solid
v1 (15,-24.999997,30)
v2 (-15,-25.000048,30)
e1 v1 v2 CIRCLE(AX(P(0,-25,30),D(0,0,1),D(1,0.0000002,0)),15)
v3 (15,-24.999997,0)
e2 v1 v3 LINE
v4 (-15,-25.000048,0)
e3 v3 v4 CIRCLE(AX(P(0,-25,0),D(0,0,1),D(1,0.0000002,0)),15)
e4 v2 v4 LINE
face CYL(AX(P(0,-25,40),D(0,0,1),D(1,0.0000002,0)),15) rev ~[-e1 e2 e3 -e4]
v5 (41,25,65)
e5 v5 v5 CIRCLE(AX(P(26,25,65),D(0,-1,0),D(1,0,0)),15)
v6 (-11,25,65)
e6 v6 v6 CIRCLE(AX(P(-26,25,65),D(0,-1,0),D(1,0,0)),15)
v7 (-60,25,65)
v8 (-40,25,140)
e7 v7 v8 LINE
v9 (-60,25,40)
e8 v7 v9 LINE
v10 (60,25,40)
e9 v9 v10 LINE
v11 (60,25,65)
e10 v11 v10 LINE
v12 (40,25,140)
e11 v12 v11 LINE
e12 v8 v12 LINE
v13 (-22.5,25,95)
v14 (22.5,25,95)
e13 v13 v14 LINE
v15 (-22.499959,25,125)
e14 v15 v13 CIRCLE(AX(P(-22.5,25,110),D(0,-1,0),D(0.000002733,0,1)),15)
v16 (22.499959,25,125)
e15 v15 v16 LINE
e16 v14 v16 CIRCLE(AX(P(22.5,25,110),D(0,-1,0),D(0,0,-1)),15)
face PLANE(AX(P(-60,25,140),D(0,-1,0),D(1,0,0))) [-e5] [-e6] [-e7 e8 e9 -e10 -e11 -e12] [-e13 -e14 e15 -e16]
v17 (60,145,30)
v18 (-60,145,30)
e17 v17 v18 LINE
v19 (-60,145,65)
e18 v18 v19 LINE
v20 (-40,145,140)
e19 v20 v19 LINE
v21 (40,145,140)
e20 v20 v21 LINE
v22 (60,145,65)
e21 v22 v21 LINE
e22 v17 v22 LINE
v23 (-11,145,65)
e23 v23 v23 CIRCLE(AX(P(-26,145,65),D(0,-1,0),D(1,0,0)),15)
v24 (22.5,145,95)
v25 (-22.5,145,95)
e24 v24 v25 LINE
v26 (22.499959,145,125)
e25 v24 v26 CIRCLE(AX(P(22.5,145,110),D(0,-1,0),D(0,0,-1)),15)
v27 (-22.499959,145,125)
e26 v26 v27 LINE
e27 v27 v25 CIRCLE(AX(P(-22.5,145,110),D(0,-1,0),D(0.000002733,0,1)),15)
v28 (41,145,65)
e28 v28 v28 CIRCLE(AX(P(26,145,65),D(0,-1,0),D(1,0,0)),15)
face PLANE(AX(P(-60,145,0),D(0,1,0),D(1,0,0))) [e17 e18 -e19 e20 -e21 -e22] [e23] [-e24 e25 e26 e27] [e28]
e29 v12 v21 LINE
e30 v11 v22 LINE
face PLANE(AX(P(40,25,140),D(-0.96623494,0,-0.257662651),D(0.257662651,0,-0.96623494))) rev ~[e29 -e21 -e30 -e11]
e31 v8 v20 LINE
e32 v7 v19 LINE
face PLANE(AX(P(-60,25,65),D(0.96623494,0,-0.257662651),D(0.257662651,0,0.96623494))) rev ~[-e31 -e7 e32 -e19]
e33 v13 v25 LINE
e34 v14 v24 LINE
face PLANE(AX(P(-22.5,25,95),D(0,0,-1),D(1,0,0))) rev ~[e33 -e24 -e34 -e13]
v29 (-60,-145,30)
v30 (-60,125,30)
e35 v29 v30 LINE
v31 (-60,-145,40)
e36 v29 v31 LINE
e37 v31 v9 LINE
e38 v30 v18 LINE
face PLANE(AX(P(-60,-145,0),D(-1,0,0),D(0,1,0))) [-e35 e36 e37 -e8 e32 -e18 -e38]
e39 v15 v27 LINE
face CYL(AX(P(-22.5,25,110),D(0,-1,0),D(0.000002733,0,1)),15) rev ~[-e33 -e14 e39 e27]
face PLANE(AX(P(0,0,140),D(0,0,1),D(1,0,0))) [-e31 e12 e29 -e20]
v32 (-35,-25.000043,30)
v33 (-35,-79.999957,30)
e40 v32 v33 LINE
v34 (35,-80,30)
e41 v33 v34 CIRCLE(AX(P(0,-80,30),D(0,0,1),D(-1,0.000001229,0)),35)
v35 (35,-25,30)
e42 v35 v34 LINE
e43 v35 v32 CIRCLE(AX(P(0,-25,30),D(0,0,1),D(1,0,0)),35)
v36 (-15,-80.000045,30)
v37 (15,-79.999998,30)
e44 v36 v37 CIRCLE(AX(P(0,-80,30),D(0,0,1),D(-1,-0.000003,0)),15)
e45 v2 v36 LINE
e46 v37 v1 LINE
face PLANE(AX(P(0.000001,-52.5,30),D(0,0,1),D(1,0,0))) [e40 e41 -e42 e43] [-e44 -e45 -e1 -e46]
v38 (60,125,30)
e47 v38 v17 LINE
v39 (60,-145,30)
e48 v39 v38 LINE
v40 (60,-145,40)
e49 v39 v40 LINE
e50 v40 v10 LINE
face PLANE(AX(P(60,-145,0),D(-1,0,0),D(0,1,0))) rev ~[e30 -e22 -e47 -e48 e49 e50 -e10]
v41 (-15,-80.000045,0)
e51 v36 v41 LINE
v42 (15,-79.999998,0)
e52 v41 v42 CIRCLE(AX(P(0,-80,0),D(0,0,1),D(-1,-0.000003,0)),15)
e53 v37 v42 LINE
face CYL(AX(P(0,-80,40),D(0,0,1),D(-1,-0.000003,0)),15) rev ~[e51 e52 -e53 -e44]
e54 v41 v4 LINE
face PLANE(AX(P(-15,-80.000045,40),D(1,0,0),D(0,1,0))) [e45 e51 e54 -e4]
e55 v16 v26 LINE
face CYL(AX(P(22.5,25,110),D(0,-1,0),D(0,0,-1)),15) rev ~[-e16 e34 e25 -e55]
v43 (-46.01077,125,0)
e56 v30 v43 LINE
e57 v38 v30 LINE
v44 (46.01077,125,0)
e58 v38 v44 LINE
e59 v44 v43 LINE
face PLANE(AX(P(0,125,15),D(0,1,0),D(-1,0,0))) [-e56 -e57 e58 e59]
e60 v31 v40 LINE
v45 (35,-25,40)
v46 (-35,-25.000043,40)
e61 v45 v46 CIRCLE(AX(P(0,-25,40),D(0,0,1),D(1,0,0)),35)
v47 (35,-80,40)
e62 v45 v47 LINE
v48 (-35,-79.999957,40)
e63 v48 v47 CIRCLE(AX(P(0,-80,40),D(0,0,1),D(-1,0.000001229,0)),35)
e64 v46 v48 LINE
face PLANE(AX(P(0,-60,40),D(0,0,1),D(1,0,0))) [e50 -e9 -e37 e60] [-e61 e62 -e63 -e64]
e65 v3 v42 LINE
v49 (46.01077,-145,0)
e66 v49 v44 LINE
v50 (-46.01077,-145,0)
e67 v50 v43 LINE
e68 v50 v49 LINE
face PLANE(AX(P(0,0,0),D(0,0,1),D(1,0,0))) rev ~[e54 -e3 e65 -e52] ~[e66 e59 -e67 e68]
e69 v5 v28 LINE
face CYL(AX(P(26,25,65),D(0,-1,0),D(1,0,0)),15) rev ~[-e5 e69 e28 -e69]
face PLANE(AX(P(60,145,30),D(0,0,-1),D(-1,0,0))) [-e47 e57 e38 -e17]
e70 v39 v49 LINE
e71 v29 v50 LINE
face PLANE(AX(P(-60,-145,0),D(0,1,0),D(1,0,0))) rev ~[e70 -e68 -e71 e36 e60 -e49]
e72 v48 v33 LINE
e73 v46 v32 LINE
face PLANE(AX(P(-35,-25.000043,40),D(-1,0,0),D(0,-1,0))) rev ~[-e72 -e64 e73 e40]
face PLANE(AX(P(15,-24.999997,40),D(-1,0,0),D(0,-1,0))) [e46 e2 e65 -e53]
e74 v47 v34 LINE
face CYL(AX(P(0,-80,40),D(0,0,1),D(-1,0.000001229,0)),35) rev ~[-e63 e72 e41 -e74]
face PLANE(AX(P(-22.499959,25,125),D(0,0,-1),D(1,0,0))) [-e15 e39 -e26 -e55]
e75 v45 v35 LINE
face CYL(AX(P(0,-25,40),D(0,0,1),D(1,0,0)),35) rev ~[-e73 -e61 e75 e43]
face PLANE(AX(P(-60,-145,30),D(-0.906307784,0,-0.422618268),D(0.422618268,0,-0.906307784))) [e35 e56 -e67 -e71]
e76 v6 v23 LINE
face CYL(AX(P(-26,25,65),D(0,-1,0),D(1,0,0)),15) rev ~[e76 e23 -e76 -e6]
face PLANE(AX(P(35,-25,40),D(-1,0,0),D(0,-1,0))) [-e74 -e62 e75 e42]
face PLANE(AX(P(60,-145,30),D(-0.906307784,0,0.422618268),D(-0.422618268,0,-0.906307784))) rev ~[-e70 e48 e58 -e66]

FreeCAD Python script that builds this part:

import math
import FreeCAD as App
import Part
import Sketcher
from FreeCAD import Vector
Q = App.Units.Quantity


def add_polygon(sketch, points):
    """Adds a closed chain of lines whose ends are joined by coincident constraints."""
    first, n = sketch.GeometryCount, len(points)
    for a, b in zip(points, points[1:] + points[:1]):
        sketch.addGeometry(Part.LineSegment(App.Vector(*a, 0), App.Vector(*b, 0)), False)
    for i in range(n):
        sketch.addConstraint(Sketcher.Constraint("Coincident", first + i, 2, first + (i + 1) % n, 1))

doc = App.newDocument("Part")
body = doc.addObject("PartDesign::Body", "Body")

# Sketch on XY plane
sketch1 = body.newObject("Sketcher::SketchObject", "Sketch")
sketch1.AttachmentSupport = (doc.getObject("XY_Plane"), [""])
sketch1.MapMode = "FlatFace"
add_polygon(sketch1, [(-60, 145), (-60, -145), (60, -145), (60, 145)])  # lines 0-3
sketch1.addConstraint([
    Sketcher.Constraint("Vertical", 0),
    Sketcher.Constraint("Horizontal", 1),
    Sketcher.Constraint("Vertical", 2),
    Sketcher.Constraint("Horizontal", 3),
    Sketcher.Constraint("Symmetric", 0, 2, 2, 2, -1, 1),
    Sketcher.Constraint("DistanceX", 1, 1, 1, 2, 120.0),
    Sketcher.Constraint("DistanceY", 0, 2, 0, 1, 290.0),
])
pad1 = body.newObject("PartDesign::Pad", "Pad")
pad1.Profile = sketch1
pad1.Length = 140

# Sketch on XY plane
sketch2 = body.newObject("Sketcher::SketchObject", "Sketch001")
sketch2.AttachmentSupport = (doc.getObject("XY_Plane"), [""])
sketch2.MapMode = "FlatFace"
sketch2.AttachmentOffset = App.Placement(Vector(0, 0, 140), App.Rotation())
add_polygon(sketch2, [(-60, 25), (-60, -145), (60, -145), (60, 25)])  # lines 0-3
sketch2.addConstraint([
    Sketcher.Constraint("Vertical", 0),
    Sketcher.Constraint("Horizontal", 1),
    Sketcher.Constraint("Vertical", 2),
    Sketcher.Constraint("Horizontal", 3),
    Sketcher.Constraint("DistanceX", 1, 1, 1, 2, 120.0),
    Sketcher.Constraint("DistanceY", 0, 2, 0, 1, 170.0),
    Sketcher.Constraint("DistanceX", 0, 2, -1, 1, 60.0),
    Sketcher.Constraint("DistanceY", 0, 2, -1, 1, 145.0),
])
pocket1 = body.newObject("PartDesign::Pocket", "Pocket")
pocket1.Profile = sketch2
pocket1.Length = 100

# Sketch on XZ plane
sketch3 = body.newObject("Sketcher::SketchObject", "Sketch002")
sketch3.AttachmentSupport = (doc.getObject("XZ_Plane"), [""])
sketch3.MapMode = "FlatFace"
sketch3.AttachmentOffset = App.Placement(Vector(0, 0, -25), App.Rotation())
add_polygon(sketch3, [(40, 140), (60, 65), (60, 140)])  # lines 0-2
add_polygon(sketch3, [(-60, 65), (-40, 140), (-60, 140)])  # lines 3-5
sketch3.addConstraint([
    Sketcher.Constraint("Vertical", 1),
    Sketcher.Constraint("Horizontal", 2),
    Sketcher.Constraint("Horizontal", 4),
    Sketcher.Constraint("Vertical", 5),
    Sketcher.Constraint("Symmetric", 2, 2, 3, 2, -2),
    Sketcher.Constraint("Symmetric", 0, 2, 5, 2, -2),
    Sketcher.Constraint("DistanceX", 2, 2, 2, 1, 20.0),
    Sketcher.Constraint("DistanceY", 1, 1, 1, 2, 75.0),
    Sketcher.Constraint("DistanceX", -1, 1, 0, 2, 60.0),
    Sketcher.Constraint("DistanceY", -1, 1, 0, 2, 65.0),
])
pocket2 = body.newObject("PartDesign::Pocket", "Pocket001")
pocket2.Profile = sketch3
pocket2.Type = "ThroughAll"

# Sketch on XZ plane
sketch4 = body.newObject("Sketcher::SketchObject", "Sketch003")
sketch4.AttachmentSupport = (doc.getObject("XZ_Plane"), [""])
sketch4.MapMode = "FlatFace"
sketch4.AttachmentOffset = App.Placement(Vector(0, 0, -25), App.Rotation())
sketch4.addGeometry([
    Part.Circle(Vector(-26, 65, 0), Vector(0, 0, 1), 15),  # 0
    Part.Circle(Vector(26, 65, 0), Vector(0, 0, 1), 15),  # 1
    Part.ArcOfCircle(Part.Circle(Vector(-22, 110, 0), Vector(0, 0, 1), 15), math.radians(90), math.radians(270)),  # 2
    Part.LineSegment(Vector(-22, 95, 0), Vector(22, 95, 0)),  # 3
    Part.ArcOfCircle(Part.Circle(Vector(22, 110, 0), Vector(0, 0, 1), 15), math.radians(-90), math.radians(90)),  # 4
    Part.LineSegment(Vector(22, 125, 0), Vector(-22, 125, 0)),  # 5
], False)
sketch4.addConstraint([
    Sketcher.Constraint("Tangent", 2, 2, 3, 1),
    Sketcher.Constraint("Tangent", 3, 2, 4, 1),
    Sketcher.Constraint("Coincident", 4, 2, 5, 1),
    Sketcher.Constraint("Coincident", 5, 2, 2, 1),
    Sketcher.Constraint("Horizontal", 3),
    Sketcher.Constraint("Horizontal", 5),
    Sketcher.Constraint("Equal", 0, 1),
    Sketcher.Constraint("Equal", 1, 2),
    Sketcher.Constraint("Symmetric", 0, 3, 1, 3, -2),
    Sketcher.Constraint("Diameter", 0, 30.0),
    Sketcher.Constraint("DistanceX", 3, 1, 3, 2, 45.0),
    Sketcher.Constraint("DistanceX", 0, 3, -1, 1, 26.0),
    Sketcher.Constraint("DistanceY", -1, 1, 0, 3, 65.0),
    Sketcher.Constraint("DistanceY", -1, 1, 2, 3, 110.0),
    Sketcher.Constraint("DistanceX", 2, 3, -1, 1, 22.5),
    Sketcher.Constraint("DistanceX", 5, 2, 5, 1, 44.999918),
    Sketcher.Constraint("DistanceX", -1, 1, 4, 2, 22.499959),
])
pocket3 = body.newObject("PartDesign::Pocket", "Pocket002")
pocket3.Profile = sketch4
pocket3.Type = "ThroughAll"

# Sketch on XZ plane
sketch5 = body.newObject("Sketcher::SketchObject", "Sketch004")
sketch5.AttachmentSupport = (doc.getObject("XZ_Plane"), [""])
sketch5.MapMode = "FlatFace"
sketch5.AttachmentOffset = App.Placement(Vector(0, 0, 145), App.Rotation())
add_polygon(sketch5, [(-46, 0), (-60, 30), (-60, 0)])  # lines 0-2
add_polygon(sketch5, [(60, 30), (46, 0), (60, 0)])  # lines 3-5
sketch5.addConstraint([
    Sketcher.Constraint("Vertical", 1),
    Sketcher.Constraint("Horizontal", 2),
    Sketcher.Constraint("Horizontal", 4),
    Sketcher.Constraint("Vertical", 5),
    Sketcher.Constraint("Symmetric", 2, 2, 3, 2, -1, 1),
    Sketcher.Constraint("Symmetric", 1, 2, 4, 2, -2),
    Sketcher.Constraint("Horizontal", 0, 2, 5, 2),
    Sketcher.Constraint("DistanceY", 1, 2, 1, 1, 30.0),
    Sketcher.Constraint("Angle", 0, Q("115 deg")),
    Sketcher.Constraint("DistanceX", 0, 2, -1, 1, 60.0),
])
pocket4 = body.newObject("PartDesign::Pocket", "Pocket003")
pocket4.Profile = sketch5
pocket4.Type = "ThroughAll"

# Sketch on XZ plane
sketch6 = body.newObject("Sketcher::SketchObject", "Sketch005")
sketch6.AttachmentSupport = (doc.getObject("XZ_Plane"), [""])
sketch6.MapMode = "FlatFace"
sketch6.AttachmentOffset = App.Placement(Vector(0, 0, -145), App.Rotation())
add_polygon(sketch6, [(60, 30), (60, 0), (-60, 0), (-60, 30)])  # lines 0-3
sketch6.addConstraint([
    Sketcher.Constraint("Vertical", 0),
    Sketcher.Constraint("Horizontal", 1),
    Sketcher.Constraint("Vertical", 2),
    Sketcher.Constraint("Horizontal", 3),
    Sketcher.Constraint("Symmetric", 0, 2, 1, 2, -1, 1),
    Sketcher.Constraint("DistanceX", 1, 2, 1, 1, 120.0),
    Sketcher.Constraint("DistanceY", 0, 2, 0, 1, 30.0),
])
pocket5 = body.newObject("PartDesign::Pocket", "Pocket004")
pocket5.Profile = sketch6
pocket5.Length = 20
pocket5.Reversed = True

# Sketch on XY plane
sketch7 = body.newObject("Sketcher::SketchObject", "Sketch006")
sketch7.AttachmentSupport = (doc.getObject("XY_Plane"), [""])
sketch7.MapMode = "FlatFace"
sketch7.AttachmentOffset = App.Placement(Vector(0, 0, 40), App.Rotation())
sketch7.addGeometry([
    Part.ArcOfCircle(Part.Circle(Vector(0, -25, 0), Vector(0, 0, 1), 15), math.radians(0), math.radians(180)),
    Part.LineSegment(Vector(-15, -25, 0), Vector(-15, -80, 0)),
    Part.ArcOfCircle(Part.Circle(Vector(0, -80, 0), Vector(0, 0, 1), 15), math.radians(-180), math.radians(0)),
    Part.LineSegment(Vector(15, -80, 0), Vector(15, -25, 0)),
], False)
sketch7.addConstraint([
    Sketcher.Constraint("Coincident", 0, 2, 1, 1),
    Sketcher.Constraint("Coincident", 1, 2, 2, 1),
    Sketcher.Constraint("Tangent", 2, 2, 3, 1),
    Sketcher.Constraint("Tangent", 3, 2, 0, 1),
    Sketcher.Constraint("Vertical", 1),
    Sketcher.Constraint("Vertical", 3),
    Sketcher.Constraint("PointOnObject", 0, 3, -2),
    Sketcher.Constraint("Radius", 0, 15.0),
    Sketcher.Constraint("DistanceY", 3, 1, 3, 2, 55.000001),
    Sketcher.Constraint("DistanceY", 0, 3, -1, 1, 25.0),
    Sketcher.Constraint("DistanceY", 1, 2, 1, 1, 54.999997),
    Sketcher.Constraint("DistanceY", 2, 2, 0, 2, 54.99995),
])
pocket6 = body.newObject("PartDesign::Pocket", "Pocket005")
pocket6.Profile = sketch7
pocket6.Type = "ThroughAll"

# Sketch on XY plane
sketch8 = body.newObject("Sketcher::SketchObject", "Sketch007")
sketch8.AttachmentSupport = (doc.getObject("XY_Plane"), [""])
sketch8.MapMode = "FlatFace"
sketch8.AttachmentOffset = App.Placement(Vector(0, 0, 40), App.Rotation())
sketch8.addGeometry([
    Part.ArcOfCircle(Part.Circle(Vector(0, -25, 0), Vector(0, 0, 1), 35), math.radians(0), math.radians(180.00007)),
    Part.LineSegment(Vector(-35, -25.000043, 0), Vector(-35, -79.999957, 0)),
    Part.ArcOfCircle(Part.Circle(Vector(0, -80, 0), Vector(0, 0, 1), 35), math.radians(179.99993), math.radians(360)),
    Part.LineSegment(Vector(35, -80, 0), Vector(35, -25, 0)),
], False)
sketch8.addConstraint([
    Sketcher.Constraint("Coincident", 0, 2, 1, 1),
    Sketcher.Constraint("Coincident", 1, 2, 2, 1),
    Sketcher.Constraint("Coincident", 2, 2, 3, 1),
    Sketcher.Constraint("Coincident", 3, 2, 0, 1),
    Sketcher.Constraint("Vertical", 1),
    Sketcher.Constraint("Vertical", 3),
    Sketcher.Constraint("PointOnObject", 0, 3, -2),
    Sketcher.Constraint("Radius", 0, 35.0),
    Sketcher.Constraint("DistanceY", 3, 1, 3, 2, 55.0),
    Sketcher.Constraint("DistanceY", 0, 3, -1, 1, 25.0),
    Sketcher.Constraint("DistanceY", 2, 3, -1, 1, 80.0),
    Sketcher.Constraint("DistanceY", 2, 2, -1, 1, 80.0),
    Sketcher.Constraint("DistanceY", 1, 2, 1, 1, 54.999914),
    Sketcher.Constraint("DistanceY", 0, 2, -1, 1, 25.000043),
])
pocket7 = body.newObject("PartDesign::Pocket", "Pocket006")
pocket7.Profile = sketch8
pocket7.Length = 10

doc.recompute()
